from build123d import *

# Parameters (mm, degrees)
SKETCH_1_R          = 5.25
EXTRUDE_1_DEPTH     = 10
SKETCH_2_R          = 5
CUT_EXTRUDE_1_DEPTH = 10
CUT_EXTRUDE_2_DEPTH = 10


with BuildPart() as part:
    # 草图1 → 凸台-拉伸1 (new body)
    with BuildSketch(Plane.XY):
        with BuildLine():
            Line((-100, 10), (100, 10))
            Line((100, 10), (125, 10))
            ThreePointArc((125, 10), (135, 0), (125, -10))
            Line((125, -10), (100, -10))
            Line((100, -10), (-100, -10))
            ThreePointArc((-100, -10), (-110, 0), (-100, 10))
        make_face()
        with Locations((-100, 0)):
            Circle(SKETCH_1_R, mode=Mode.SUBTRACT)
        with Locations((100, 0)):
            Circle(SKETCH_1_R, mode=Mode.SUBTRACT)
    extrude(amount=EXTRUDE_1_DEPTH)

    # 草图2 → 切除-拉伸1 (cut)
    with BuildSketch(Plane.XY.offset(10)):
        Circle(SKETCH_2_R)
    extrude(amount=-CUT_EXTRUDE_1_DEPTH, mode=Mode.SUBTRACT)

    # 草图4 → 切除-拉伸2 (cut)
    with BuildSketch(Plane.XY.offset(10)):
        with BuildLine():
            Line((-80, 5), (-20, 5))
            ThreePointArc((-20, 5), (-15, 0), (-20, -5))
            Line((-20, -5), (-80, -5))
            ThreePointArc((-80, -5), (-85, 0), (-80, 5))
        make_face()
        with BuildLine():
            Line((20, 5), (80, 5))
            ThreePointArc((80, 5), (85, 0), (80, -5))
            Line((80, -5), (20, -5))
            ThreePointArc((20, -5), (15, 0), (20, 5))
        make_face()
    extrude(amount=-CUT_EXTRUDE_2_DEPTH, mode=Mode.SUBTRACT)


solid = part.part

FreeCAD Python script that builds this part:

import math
import FreeCAD as App
import Part
import Sketcher
Q = App.Units.Quantity

doc = App.newDocument("Part")
body = doc.addObject("PartDesign::Body", "Body")

# Sketch on XY plane
sketch1 = body.newObject("Sketcher::SketchObject", "Sketch")
sketch1.AttachmentSupport = (doc.getObject("XY_Plane"), [""])
sketch1.MapMode = "FlatFace"
sketch1.addGeometry([
    Part.LineSegment(App.Vector(125, 10, 0), App.Vector(-100, 10, 0)),  # 0
    Part.ArcOfCircle(Part.Circle(App.Vector(-100, 0, 0), App.Vector(0, 0, 1), 10), math.radians(90), math.radians(270)),  # 1
    Part.LineSegment(App.Vector(-100, -10, 0), App.Vector(125, -10, 0)),  # 2
    Part.ArcOfCircle(Part.Circle(App.Vector(125, 0, 0), App.Vector(0, 0, 1), 10), math.radians(-90), math.radians(90)),  # 3
    Part.Circle(App.Vector(100, 0, 0), App.Vector(0, 0, 1), 5),  # 4
    Part.Circle(App.Vector(-100, 0, 0), App.Vector(0, 0, 1), 5),  # 5
], False)
sketch1.addConstraint([
    Sketcher.Constraint("Tangent", 0, 2, 1, 1),
    Sketcher.Constraint("Tangent", 1, 2, 2, 1),
    Sketcher.Constraint("Tangent", 2, 2, 3, 1),
    Sketcher.Constraint("Tangent", 3, 2, 0, 1),
    Sketcher.Constraint("Horizontal", 0),
    Sketcher.Constraint("Horizontal", 2),
    Sketcher.Constraint("Coincident", 5, 3, 1, 3),
    Sketcher.Constraint("Equal", 4, 5),
    Sketcher.Constraint("Symmetric", 1, 3, 4, 3, -1, 1),
    Sketcher.Constraint("PointOnObject", 1, 3, -1),
    Sketcher.Constraint("Radius", 1, Q("10 mm")),
    Sketcher.Constraint("Diameter", 4, Q("10.5 mm")),
    Sketcher.Constraint("DistanceX", 0, 2, 0, 1, Q("225 mm")),
    Sketcher.Constraint("DistanceX", 1, 3, -1, 1, Q("100 mm")),
])
pad1 = body.newObject("PartDesign::Pad", "Pad")
pad1.Profile = sketch1
pad1.Length = 10

# Sketch on XY plane
sketch2 = body.newObject("Sketcher::SketchObject", "Sketch001")
sketch2.AttachmentSupport = (doc.getObject("XY_Plane"), [""])
sketch2.MapMode = "FlatFace"
sketch2.AttachmentOffset = App.Placement(App.Vector(0, 0, 10), App.Rotation())
sketch2.addGeometry(Part.Circle(App.Vector(0, 0, 0), App.Vector(0, 0, 1), 5), False)
sketch2.addConstraint([
    Sketcher.Constraint("Coincident", 0, 3, -1, 1),
    Sketcher.Constraint("Diameter", 0, Q("10 mm")),
])
pocket1 = body.newObject("PartDesign::Pocket", "Pocket")
pocket1.Profile = sketch2
pocket1.Length = 10

# Sketch on XY plane
sketch3 = body.newObject("Sketcher::SketchObject", "Sketch002")
sketch3.AttachmentSupport = (doc.getObject("XY_Plane"), [""])
sketch3.MapMode = "FlatFace"
sketch3.AttachmentOffset = App.Placement(App.Vector(0, 0, 10), App.Rotation())
sketch3.addGeometry([
    Part.LineSegment(App.Vector(-20, 5, 0), App.Vector(-80, 5, 0)),  # 0
    Part.ArcOfCircle(Part.Circle(App.Vector(-80, 0, 0), App.Vector(0, 0, 1), 5), math.radians(90), math.radians(270)),  # 1
    Part.LineSegment(App.Vector(-80, -5, 0), App.Vector(-20, -5, 0)),  # 2
    Part.ArcOfCircle(Part.Circle(App.Vector(-20, 0, 0), App.Vector(0, 0, 1), 5), math.radians(-90), math.radians(90)),  # 3
    Part.LineSegment(App.Vector(80, 5, 0), App.Vector(20, 5, 0)),  # 4
    Part.ArcOfCircle(Part.Circle(App.Vector(20, 0, 0), App.Vector(0, 0, 1), 5), math.radians(90), math.radians(270)),  # 5
    Part.LineSegment(App.Vector(20, -5, 0), App.Vector(80, -5, 0)),  # 6
    Part.ArcOfCircle(Part.Circle(App.Vector(80, 0, 0), App.Vector(0, 0, 1), 5), math.radians(-90), math.radians(90)),  # 7
], False)
sketch3.addConstraint([
    Sketcher.Constraint("Tangent", 0, 2, 1, 1),
    Sketcher.Constraint("Tangent", 1, 2, 2, 1),
    Sketcher.Constraint("Tangent", 2, 2, 3, 1),
    Sketcher.Constraint("Tangent", 3, 2, 0, 1),
    Sketcher.Constraint("Tangent", 4, 2, 5, 1),
    Sketcher.Constraint("Tangent", 5, 2, 6, 1),
    Sketcher.Constraint("Tangent", 6, 2, 7, 1),
    Sketcher.Constraint("Tangent", 7, 2, 4, 1),
    Sketcher.Constraint("Horizontal", 0),
    Sketcher.Constraint("Horizontal", 2),
    Sketcher.Constraint("Horizontal", 4),
    Sketcher.Constraint("Horizontal", 6),
    Sketcher.Constraint("Equal", 3, 5),
    Sketcher.Constraint("Symmetric", 3, 3, 5, 3, -1, 1),
    Sketcher.Constraint("Symmetric", 1, 3, 7, 3, -2),
    Sketcher.Constraint("Radius", 1, Q("5 mm")),
    Sketcher.Constraint("DistanceX", 0, 2, 0, 1, Q("60 mm")),
    Sketcher.Constraint("DistanceX", 1, 3, -1, 1, Q("80 mm")),
])
pocket2 = body.newObject("PartDesign::Pocket", "Pocket001")
pocket2.Profile = sketch3
pocket2.Length = 10

doc.recompute()
